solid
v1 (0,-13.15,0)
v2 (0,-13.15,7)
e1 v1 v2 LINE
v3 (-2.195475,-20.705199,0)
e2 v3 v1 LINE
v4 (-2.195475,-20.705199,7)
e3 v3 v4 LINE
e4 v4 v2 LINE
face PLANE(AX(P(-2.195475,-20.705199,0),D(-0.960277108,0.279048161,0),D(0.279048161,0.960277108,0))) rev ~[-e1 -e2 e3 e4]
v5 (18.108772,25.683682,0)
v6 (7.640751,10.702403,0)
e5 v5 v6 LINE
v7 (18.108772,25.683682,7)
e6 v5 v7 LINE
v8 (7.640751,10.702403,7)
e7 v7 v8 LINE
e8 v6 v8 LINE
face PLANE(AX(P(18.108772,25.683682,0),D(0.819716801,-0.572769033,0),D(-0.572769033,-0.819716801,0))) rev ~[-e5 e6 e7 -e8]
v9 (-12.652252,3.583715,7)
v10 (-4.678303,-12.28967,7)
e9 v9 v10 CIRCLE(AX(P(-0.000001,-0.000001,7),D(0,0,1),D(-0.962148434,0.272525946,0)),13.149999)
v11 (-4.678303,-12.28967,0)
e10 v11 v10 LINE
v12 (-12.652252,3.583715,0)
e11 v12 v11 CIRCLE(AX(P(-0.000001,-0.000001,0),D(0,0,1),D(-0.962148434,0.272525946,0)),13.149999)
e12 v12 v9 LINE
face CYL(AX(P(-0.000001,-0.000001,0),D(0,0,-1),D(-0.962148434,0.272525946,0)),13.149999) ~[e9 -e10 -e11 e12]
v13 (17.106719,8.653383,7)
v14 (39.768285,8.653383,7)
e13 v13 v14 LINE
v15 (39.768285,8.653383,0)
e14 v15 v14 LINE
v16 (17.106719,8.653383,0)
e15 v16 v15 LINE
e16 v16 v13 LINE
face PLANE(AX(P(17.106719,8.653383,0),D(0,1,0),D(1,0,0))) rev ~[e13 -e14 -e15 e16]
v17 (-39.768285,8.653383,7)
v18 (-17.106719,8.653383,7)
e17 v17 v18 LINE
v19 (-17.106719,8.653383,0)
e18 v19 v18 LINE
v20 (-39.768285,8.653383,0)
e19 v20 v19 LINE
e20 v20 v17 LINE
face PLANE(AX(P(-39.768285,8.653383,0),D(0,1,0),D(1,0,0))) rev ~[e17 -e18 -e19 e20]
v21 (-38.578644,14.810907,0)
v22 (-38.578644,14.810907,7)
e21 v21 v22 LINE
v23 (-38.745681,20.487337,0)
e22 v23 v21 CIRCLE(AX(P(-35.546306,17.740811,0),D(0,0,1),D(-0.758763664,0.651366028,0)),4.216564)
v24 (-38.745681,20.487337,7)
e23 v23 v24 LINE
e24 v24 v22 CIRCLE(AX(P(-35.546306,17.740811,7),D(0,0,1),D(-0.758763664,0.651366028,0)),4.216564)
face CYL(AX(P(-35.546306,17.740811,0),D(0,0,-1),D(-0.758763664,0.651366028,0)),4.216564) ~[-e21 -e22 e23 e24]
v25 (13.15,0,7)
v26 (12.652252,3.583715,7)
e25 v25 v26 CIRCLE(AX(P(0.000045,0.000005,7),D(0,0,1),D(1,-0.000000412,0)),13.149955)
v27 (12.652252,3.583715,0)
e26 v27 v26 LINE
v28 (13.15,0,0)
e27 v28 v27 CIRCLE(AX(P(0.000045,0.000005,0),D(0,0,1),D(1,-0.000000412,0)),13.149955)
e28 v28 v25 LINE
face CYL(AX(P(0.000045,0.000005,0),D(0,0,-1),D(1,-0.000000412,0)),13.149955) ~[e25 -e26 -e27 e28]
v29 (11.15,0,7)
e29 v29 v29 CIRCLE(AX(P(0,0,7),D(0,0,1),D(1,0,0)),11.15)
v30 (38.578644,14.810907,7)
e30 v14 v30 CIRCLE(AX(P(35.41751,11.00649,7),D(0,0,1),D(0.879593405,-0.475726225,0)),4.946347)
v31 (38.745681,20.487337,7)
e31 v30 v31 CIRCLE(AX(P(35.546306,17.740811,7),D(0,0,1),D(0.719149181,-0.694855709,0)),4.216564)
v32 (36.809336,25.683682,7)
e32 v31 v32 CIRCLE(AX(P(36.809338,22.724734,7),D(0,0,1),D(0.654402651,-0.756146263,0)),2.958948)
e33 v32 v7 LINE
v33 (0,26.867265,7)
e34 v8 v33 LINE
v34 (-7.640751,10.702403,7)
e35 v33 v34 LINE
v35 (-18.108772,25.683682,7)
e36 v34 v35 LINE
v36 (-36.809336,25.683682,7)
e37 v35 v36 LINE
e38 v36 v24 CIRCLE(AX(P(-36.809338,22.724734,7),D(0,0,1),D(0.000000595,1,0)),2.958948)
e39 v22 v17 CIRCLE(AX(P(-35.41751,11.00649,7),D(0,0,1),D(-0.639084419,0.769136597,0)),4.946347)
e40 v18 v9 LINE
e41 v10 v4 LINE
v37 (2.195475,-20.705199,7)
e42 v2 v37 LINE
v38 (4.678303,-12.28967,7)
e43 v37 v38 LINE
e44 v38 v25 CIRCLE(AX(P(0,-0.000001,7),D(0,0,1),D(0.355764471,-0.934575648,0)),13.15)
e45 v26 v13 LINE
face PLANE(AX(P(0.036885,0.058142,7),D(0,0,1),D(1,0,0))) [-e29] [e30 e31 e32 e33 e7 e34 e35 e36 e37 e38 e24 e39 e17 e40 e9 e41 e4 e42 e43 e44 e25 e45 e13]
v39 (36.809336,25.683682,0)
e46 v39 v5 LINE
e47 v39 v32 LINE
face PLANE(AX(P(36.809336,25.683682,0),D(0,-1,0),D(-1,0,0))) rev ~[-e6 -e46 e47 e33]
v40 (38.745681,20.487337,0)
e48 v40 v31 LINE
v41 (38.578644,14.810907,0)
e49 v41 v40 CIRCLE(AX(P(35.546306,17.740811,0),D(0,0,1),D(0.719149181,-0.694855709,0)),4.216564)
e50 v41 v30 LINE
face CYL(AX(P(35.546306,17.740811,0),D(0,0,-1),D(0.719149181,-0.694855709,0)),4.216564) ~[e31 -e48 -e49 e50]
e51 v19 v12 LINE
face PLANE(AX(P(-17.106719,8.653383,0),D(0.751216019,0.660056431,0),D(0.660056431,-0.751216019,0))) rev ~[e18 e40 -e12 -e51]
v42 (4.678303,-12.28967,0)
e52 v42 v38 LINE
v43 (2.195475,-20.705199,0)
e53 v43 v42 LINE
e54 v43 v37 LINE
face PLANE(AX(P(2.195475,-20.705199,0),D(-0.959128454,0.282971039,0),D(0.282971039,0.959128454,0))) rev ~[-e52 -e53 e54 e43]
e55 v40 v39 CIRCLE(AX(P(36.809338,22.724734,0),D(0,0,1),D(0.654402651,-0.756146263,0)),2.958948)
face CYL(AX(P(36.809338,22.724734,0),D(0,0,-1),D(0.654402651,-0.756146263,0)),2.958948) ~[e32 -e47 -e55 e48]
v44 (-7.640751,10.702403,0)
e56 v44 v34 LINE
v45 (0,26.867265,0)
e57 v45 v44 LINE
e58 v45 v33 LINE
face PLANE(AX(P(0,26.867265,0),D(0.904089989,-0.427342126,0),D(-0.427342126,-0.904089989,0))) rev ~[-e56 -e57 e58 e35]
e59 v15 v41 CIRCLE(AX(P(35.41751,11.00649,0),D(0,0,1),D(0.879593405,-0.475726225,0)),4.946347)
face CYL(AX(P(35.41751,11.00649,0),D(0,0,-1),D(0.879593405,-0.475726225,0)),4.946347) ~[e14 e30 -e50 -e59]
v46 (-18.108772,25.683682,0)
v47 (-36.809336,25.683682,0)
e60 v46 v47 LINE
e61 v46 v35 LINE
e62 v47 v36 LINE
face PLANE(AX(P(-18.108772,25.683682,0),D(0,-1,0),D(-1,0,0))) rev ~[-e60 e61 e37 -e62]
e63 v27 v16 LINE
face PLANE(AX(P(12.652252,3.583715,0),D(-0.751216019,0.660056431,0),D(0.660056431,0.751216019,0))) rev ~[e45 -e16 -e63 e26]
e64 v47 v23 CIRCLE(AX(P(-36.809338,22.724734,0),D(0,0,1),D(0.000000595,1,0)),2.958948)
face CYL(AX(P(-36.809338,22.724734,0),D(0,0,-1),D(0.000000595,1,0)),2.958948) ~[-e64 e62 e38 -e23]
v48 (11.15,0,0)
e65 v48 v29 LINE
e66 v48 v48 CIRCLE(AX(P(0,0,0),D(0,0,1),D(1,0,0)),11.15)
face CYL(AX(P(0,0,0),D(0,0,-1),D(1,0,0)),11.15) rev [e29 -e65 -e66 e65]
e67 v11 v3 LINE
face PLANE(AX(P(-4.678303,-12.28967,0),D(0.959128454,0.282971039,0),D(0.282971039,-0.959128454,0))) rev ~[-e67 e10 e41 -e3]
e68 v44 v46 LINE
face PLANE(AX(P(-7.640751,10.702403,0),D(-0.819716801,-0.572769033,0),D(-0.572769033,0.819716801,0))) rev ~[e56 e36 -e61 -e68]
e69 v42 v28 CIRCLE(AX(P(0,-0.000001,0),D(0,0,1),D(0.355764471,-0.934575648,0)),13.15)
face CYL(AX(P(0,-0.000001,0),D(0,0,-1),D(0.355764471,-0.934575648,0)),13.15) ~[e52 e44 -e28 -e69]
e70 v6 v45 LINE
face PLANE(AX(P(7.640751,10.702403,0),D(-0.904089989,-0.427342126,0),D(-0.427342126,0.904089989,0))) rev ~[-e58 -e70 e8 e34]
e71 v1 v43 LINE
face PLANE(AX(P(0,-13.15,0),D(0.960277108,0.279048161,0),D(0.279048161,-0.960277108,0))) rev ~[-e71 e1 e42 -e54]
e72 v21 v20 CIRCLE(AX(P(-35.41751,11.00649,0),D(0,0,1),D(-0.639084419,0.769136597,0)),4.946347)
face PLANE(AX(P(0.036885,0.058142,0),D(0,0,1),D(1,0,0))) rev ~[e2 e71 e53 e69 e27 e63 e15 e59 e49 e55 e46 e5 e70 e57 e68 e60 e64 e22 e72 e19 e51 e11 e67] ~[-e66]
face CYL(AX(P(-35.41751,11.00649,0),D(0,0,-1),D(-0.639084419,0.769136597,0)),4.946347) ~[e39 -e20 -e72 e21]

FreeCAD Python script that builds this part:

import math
import FreeCAD as App
import Part
import Sketcher
from FreeCAD import Vector
Q = App.Units.Quantity

doc = App.newDocument("Part")
body = doc.addObject("PartDesign::Body", "Body")

# Sketch on XY plane
sketch1 = body.newObject("Sketcher::SketchObject", "Sketch")
sketch1.AttachmentSupport = (doc.getObject("XY_Plane"), [""])
sketch1.MapMode = "FlatFace"
sketch1.addGeometry([
    Part.ArcOfCircle(Part.Circle(Vector(0, -0.000001, 0), Vector(0, 0, 1), 13.15), math.radians(-69.159696), math.radians(0.000002)),  # 0
    Part.ArcOfCircle(Part.Circle(Vector(0.000045, 0.000005, 0), Vector(0, 0, 1), 13.149955), math.radians(-0.000024), math.radians(15.814657)),  # 1
    Part.LineSegment(Vector(12.652252, 3.583715, 0), Vector(17.106719, 8.653383, 0)),  # 2
    Part.LineSegment(Vector(17.106719, 8.653383, 0), Vector(39.768285, 8.653383, 0)),  # 3
    Part.ArcOfCircle(Part.Circle(Vector(35.41751, 11.00649, 0), Vector(0, 0, 1), 4.946347), math.radians(-28.406645), math.radians(50.276419)),  # 4
    Part.ArcOfCircle(Part.Circle(Vector(35.546306, 17.740811, 0), Vector(0, 0, 1), 4.216564), math.radians(-44.01572), math.radians(40.644674)),  # 5
    Part.ArcOfCircle(Part.Circle(Vector(36.809338, 22.724734, 0), Vector(0, 0, 1), 2.958948), math.radians(-49.125629), math.radians(90.000034)),  # 6
    Part.LineSegment(Vector(36.809336, 25.683682, 0), Vector(18.108772, 25.683682, 0)),  # 7
    Part.LineSegment(Vector(18.108772, 25.683682, 0), Vector(7.640751, 10.702403, 0)),  # 8
    Part.LineSegment(Vector(7.640751, 10.702403, 0), Vector(0, 26.867265, 0)),  # 9
    Part.LineSegment(Vector(0, 26.867265, 0), Vector(-7.640751, 10.702403, 0)),  # 10
    Part.LineSegment(Vector(-7.640751, 10.702403, 0), Vector(-18.108772, 25.683682, 0)),  # 11
    Part.LineSegment(Vector(-18.108772, 25.683682, 0), Vector(-36.809336, 25.683682, 0)),  # 12
    Part.ArcOfCircle(Part.Circle(Vector(-36.809338, 22.724734, 0), Vector(0, 0, 1), 2.958948), math.radians(89.999966), math.radians(229.125629)),  # 13
    Part.ArcOfCircle(Part.Circle(Vector(-35.546306, 17.740811, 0), Vector(0, 0, 1), 4.216564), math.radians(139.355326), math.radians(224.01572)),  # 14
    Part.ArcOfCircle(Part.Circle(Vector(-35.41751, 11.00649, 0), Vector(0, 0, 1), 4.946347), math.radians(129.723581), math.radians(208.406645)),  # 15
    Part.LineSegment(Vector(-39.768285, 8.653383, 0), Vector(-17.106719, 8.653383, 0)),  # 16
    Part.LineSegment(Vector(-17.106719, 8.653383, 0), Vector(-12.652252, 3.583715, 0)),  # 17
    Part.ArcOfCircle(Part.Circle(Vector(-0.000001, -0.000001, 0), Vector(0, 0, 1), 13.149999), math.radians(164.185369), math.radians(249.159698)),  # 18
    Part.LineSegment(Vector(-4.678303, -12.28967, 0), Vector(-2.195475, -20.705199, 0)),  # 19
    Part.LineSegment(Vector(-2.195475, -20.705199, 0), Vector(0, -13.15, 0)),  # 20
    Part.LineSegment(Vector(0, -13.15, 0), Vector(2.195475, -20.705199, 0)),  # 21
    Part.LineSegment(Vector(2.195475, -20.705199, 0), Vector(4.678303, -12.28967, 0)),  # 22
    Part.Circle(Vector(0, 0, 0), Vector(0, 0, 1), 11.15),  # 23
], False)
sketch1.addConstraint([
    Sketcher.Constraint("Coincident", 0, 2, 1, 1),
    Sketcher.Constraint("Coincident", 1, 2, 2, 1),
    Sketcher.Constraint("Coincident", 2, 2, 3, 1),
    Sketcher.Constraint("Coincident", 3, 2, 4, 1),
    Sketcher.Constraint("Coincident", 4, 2, 5, 1),
    Sketcher.Constraint("Coincident", 5, 2, 6, 1),
    Sketcher.Constraint("Coincident", 6, 2, 7, 1),
    Sketcher.Constraint("Coincident", 7, 2, 8, 1),
    Sketcher.Constraint("Coincident", 8, 2, 9, 1),
    Sketcher.Constraint("Coincident", 9, 2, 10, 1),
    Sketcher.Constraint("Coincident", 10, 2, 11, 1),
    Sketcher.Constraint("Coincident", 11, 2, 12, 1),
    Sketcher.Constraint("Coincident", 12, 2, 13, 1),
    Sketcher.Constraint("Coincident", 13, 2, 14, 1),
    Sketcher.Constraint("Coincident", 14, 2, 15, 1),
    Sketcher.Constraint("Coincident", 15, 2, 16, 1),
    Sketcher.Constraint("Coincident", 16, 2, 17, 1),
    Sketcher.Constraint("Coincident", 17, 2, 18, 1),
    Sketcher.Constraint("Coincident", 18, 2, 19, 1),
    Sketcher.Constraint("Coincident", 19, 2, 20, 1),
    Sketcher.Constraint("Coincident", 20, 2, 21, 1),
    Sketcher.Constraint("Coincident", 21, 2, 22, 1),
    Sketcher.Constraint("Coincident", 22, 2, 0, 1),
    Sketcher.Constraint("Horizontal", 3),
    Sketcher.Constraint("Horizontal", 7),
    Sketcher.Constraint("Horizontal", 12),
    Sketcher.Constraint("Horizontal", 16),
    Sketcher.Constraint("Coincident", 0, 3, -1, 1),
    Sketcher.Constraint("Coincident", 18, 3, -1, 1),
    Sketcher.Constraint("Coincident", 23, 3, -1, 1),
    Sketcher.Constraint("PointOnObject", 0, 2, -1),
    Sketcher.Constraint("PointOnObject", 9, 2, -2),
    Sketcher.Constraint("PointOnObject", 20, 2, -2),
    Sketcher.Constraint("Diameter", 23, Q("22.3 mm")),
    Sketcher.Constraint("Radius", 0, Q("13.15 mm")),
    Sketcher.Constraint("Radius", 18, Q("13.149999 mm")),
    Sketcher.Constraint("DistanceY", 20, 2, -1, 1, Q("13.15 mm")),
    Sketcher.Constraint("Radius", 1, Q("13.149955 mm")),
    Sketcher.Constraint("Radius", 4, Q("4.946347 mm")),
    Sketcher.Constraint("Radius", 5, Q("4.216564 mm")),
    Sketcher.Constraint("Radius", 6, Q("2.958948 mm")),
    Sketcher.Constraint("Radius", 13, Q("2.958948 mm")),
    Sketcher.Constraint("Radius", 14, Q("4.216564 mm")),
    Sketcher.Constraint("Radius", 15, Q("4.946347 mm")),
    Sketcher.Constraint("DistanceY", 19, 2, -1, 1, Q("20.705199 mm")),
    Sketcher.Constraint("DistanceY", 21, 2, -1, 1, Q("20.705199 mm")),
    Sketcher.Constraint("DistanceY", 2, 2, 7, 2, Q("17.030299 mm")),
    Sketcher.Constraint("DistanceX", 8, 2, 1, 2, Q("5.011501 mm")),
    Sketcher.Constraint("DistanceY", 16, 2, 11, 2, Q("17.030299 mm")),
    Sketcher.Constraint("DistanceX", 17, 2, 10, 2, Q("5.011501 mm")),
    Sketcher.Constraint("Distance", 19, Q("8.774142 mm")),
    Sketcher.Constraint("Distance", 22, Q("8.774142 mm")),
    Sketcher.Constraint("DistanceX", 3, 1, 3, 2, Q("22.661566 mm")),
    Sketcher.Constraint("DistanceX", 7, 2, 7, 1, Q("18.700564 mm")),
    Sketcher.Constraint("DistanceX", 12, 2, 12, 1, Q("18.700564 mm")),
    Sketcher.Constraint("DistanceX", 16, 1, 16, 2, Q("22.661566 mm")),
    Sketcher.Constraint("DistanceX", -1, 1, 4, 3, Q("35.41751 mm")),
    Sketcher.Constraint("DistanceY", -1, 1, 4, 3, Q("11.00649 mm")),
    Sketcher.Constraint("DistanceY", -1, 1, 5, 3, Q("17.740811 mm")),
    Sketcher.Constraint("DistanceY", -1, 1, 14, 3, Q("17.740811 mm")),
    Sketcher.Constraint("DistanceX", 15, 3, -1, 1, Q("35.41751 mm")),
    Sketcher.Constraint("DistanceY", -1, 1, 15, 3, Q("11.00649 mm")),
    Sketcher.Constraint("DistanceX", -1, 1, 1, 2, Q("12.652252 mm")),
    Sketcher.Constraint("DistanceX", -1, 1, 2, 2, Q("17.106719 mm")),
    Sketcher.Constraint("DistanceX", -1, 1, 5, 2, Q("38.745681 mm")),
    Sketcher.Constraint("DistanceX", -1, 1, 7, 2, Q("18.108772 mm")),
    Sketcher.Constraint("DistanceX", 10, 2, -1, 1, Q("7.640751 mm")),
    Sketcher.Constraint("DistanceX", 11, 2, -1, 1, Q("18.108772 mm")),
    Sketcher.Constraint("DistanceX", 13, 2, -1, 1, Q("38.745681 mm")),
    Sketcher.Constraint("DistanceX", 16, 2, -1, 1, Q("17.106719 mm")),
    Sketcher.Constraint("DistanceY", 18, 2, -1, 1, Q("12.28967 mm")),
    Sketcher.Constraint("DistanceY", 22, 2, -1, 1, Q("12.28967 mm")),
    Sketcher.Constraint("DistanceX", 1, 3, 5, 3, Q("35.54626 mm")),
    Sketcher.Constraint("DistanceY", 1, 3, 6, 3, Q("22.724729 mm")),
    Sketcher.Constraint("DistanceX", 13, 3, 0, 3, Q("36.809338 mm")),
    Sketcher.Constraint("DistanceY", 1, 2, 8, 2, Q("7.118688 mm")),
    Sketcher.Constraint("DistanceY", 8, 2, 9, 2, Q("16.164862 mm")),
    Sketcher.Constraint("DistanceY", 10, 2, 11, 2, Q("14.981279 mm")),
])
pad1 = body.newObject("PartDesign::Pad", "Pad")
pad1.Profile = sketch1
pad1.Length = 7

doc.recompute()
